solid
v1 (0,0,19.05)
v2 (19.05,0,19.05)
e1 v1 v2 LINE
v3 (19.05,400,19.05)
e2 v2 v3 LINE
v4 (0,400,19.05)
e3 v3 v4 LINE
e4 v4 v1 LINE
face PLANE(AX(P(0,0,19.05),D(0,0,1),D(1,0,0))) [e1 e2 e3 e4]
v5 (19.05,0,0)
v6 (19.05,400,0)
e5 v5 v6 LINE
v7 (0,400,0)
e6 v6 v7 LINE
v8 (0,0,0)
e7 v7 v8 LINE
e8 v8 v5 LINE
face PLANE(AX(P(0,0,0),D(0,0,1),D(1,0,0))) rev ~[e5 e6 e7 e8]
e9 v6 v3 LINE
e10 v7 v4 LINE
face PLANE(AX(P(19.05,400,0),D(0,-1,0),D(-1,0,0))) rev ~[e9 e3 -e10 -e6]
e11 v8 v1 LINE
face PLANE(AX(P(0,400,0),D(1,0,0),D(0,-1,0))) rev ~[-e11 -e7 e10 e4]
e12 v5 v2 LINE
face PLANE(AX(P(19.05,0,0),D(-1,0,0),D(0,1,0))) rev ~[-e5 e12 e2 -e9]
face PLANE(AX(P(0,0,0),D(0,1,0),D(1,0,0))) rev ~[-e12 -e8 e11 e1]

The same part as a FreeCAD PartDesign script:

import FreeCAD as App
import Part
import Sketcher
Q = App.Units.Quantity


def add_polygon(sketch, points):
    """Adds a closed chain of lines whose ends are joined by coincident constraints."""
    first, n = sketch.GeometryCount, len(points)
    for a, b in zip(points, points[1:] + points[:1]):
        sketch.addGeometry(Part.LineSegment(App.Vector(*a, 0), App.Vector(*b, 0)), False)
    for i in range(n):
        sketch.addConstraint(Sketcher.Constraint("Coincident", first + i, 2, first + (i + 1) % n, 1))

doc = App.newDocument("Part")
body = doc.addObject("PartDesign::Body", "Body")

# Sketch on XY plane
sketch1 = body.newObject("Sketcher::SketchObject", "Sketch")
sketch1.AttachmentSupport = (doc.getObject("XY_Plane"), [""])
sketch1.MapMode = "FlatFace"
add_polygon(sketch1, [(0, 400), (0, 0), (19.05, 0), (19.05, 400)])  # lines 0-3
sketch1.addConstraint([
    Sketcher.Constraint("Vertical", 0),
    Sketcher.Constraint("Horizontal", 1),
    Sketcher.Constraint("Vertical", 2),
    Sketcher.Constraint("Horizontal", 3),
    Sketcher.Constraint("Coincident", 0, 2, -1, 1),
    Sketcher.Constraint("DistanceY", 0, 2, 0, 1, Q("400 mm")),
    Sketcher.Constraint("DistanceX", 1, 1, 1, 2, Q("19.05 mm")),
])
pad1 = body.newObject("PartDesign::Pad", "Pad")
pad1.Profile = sketch1
pad1.Length = 19.05

doc.recompute()
